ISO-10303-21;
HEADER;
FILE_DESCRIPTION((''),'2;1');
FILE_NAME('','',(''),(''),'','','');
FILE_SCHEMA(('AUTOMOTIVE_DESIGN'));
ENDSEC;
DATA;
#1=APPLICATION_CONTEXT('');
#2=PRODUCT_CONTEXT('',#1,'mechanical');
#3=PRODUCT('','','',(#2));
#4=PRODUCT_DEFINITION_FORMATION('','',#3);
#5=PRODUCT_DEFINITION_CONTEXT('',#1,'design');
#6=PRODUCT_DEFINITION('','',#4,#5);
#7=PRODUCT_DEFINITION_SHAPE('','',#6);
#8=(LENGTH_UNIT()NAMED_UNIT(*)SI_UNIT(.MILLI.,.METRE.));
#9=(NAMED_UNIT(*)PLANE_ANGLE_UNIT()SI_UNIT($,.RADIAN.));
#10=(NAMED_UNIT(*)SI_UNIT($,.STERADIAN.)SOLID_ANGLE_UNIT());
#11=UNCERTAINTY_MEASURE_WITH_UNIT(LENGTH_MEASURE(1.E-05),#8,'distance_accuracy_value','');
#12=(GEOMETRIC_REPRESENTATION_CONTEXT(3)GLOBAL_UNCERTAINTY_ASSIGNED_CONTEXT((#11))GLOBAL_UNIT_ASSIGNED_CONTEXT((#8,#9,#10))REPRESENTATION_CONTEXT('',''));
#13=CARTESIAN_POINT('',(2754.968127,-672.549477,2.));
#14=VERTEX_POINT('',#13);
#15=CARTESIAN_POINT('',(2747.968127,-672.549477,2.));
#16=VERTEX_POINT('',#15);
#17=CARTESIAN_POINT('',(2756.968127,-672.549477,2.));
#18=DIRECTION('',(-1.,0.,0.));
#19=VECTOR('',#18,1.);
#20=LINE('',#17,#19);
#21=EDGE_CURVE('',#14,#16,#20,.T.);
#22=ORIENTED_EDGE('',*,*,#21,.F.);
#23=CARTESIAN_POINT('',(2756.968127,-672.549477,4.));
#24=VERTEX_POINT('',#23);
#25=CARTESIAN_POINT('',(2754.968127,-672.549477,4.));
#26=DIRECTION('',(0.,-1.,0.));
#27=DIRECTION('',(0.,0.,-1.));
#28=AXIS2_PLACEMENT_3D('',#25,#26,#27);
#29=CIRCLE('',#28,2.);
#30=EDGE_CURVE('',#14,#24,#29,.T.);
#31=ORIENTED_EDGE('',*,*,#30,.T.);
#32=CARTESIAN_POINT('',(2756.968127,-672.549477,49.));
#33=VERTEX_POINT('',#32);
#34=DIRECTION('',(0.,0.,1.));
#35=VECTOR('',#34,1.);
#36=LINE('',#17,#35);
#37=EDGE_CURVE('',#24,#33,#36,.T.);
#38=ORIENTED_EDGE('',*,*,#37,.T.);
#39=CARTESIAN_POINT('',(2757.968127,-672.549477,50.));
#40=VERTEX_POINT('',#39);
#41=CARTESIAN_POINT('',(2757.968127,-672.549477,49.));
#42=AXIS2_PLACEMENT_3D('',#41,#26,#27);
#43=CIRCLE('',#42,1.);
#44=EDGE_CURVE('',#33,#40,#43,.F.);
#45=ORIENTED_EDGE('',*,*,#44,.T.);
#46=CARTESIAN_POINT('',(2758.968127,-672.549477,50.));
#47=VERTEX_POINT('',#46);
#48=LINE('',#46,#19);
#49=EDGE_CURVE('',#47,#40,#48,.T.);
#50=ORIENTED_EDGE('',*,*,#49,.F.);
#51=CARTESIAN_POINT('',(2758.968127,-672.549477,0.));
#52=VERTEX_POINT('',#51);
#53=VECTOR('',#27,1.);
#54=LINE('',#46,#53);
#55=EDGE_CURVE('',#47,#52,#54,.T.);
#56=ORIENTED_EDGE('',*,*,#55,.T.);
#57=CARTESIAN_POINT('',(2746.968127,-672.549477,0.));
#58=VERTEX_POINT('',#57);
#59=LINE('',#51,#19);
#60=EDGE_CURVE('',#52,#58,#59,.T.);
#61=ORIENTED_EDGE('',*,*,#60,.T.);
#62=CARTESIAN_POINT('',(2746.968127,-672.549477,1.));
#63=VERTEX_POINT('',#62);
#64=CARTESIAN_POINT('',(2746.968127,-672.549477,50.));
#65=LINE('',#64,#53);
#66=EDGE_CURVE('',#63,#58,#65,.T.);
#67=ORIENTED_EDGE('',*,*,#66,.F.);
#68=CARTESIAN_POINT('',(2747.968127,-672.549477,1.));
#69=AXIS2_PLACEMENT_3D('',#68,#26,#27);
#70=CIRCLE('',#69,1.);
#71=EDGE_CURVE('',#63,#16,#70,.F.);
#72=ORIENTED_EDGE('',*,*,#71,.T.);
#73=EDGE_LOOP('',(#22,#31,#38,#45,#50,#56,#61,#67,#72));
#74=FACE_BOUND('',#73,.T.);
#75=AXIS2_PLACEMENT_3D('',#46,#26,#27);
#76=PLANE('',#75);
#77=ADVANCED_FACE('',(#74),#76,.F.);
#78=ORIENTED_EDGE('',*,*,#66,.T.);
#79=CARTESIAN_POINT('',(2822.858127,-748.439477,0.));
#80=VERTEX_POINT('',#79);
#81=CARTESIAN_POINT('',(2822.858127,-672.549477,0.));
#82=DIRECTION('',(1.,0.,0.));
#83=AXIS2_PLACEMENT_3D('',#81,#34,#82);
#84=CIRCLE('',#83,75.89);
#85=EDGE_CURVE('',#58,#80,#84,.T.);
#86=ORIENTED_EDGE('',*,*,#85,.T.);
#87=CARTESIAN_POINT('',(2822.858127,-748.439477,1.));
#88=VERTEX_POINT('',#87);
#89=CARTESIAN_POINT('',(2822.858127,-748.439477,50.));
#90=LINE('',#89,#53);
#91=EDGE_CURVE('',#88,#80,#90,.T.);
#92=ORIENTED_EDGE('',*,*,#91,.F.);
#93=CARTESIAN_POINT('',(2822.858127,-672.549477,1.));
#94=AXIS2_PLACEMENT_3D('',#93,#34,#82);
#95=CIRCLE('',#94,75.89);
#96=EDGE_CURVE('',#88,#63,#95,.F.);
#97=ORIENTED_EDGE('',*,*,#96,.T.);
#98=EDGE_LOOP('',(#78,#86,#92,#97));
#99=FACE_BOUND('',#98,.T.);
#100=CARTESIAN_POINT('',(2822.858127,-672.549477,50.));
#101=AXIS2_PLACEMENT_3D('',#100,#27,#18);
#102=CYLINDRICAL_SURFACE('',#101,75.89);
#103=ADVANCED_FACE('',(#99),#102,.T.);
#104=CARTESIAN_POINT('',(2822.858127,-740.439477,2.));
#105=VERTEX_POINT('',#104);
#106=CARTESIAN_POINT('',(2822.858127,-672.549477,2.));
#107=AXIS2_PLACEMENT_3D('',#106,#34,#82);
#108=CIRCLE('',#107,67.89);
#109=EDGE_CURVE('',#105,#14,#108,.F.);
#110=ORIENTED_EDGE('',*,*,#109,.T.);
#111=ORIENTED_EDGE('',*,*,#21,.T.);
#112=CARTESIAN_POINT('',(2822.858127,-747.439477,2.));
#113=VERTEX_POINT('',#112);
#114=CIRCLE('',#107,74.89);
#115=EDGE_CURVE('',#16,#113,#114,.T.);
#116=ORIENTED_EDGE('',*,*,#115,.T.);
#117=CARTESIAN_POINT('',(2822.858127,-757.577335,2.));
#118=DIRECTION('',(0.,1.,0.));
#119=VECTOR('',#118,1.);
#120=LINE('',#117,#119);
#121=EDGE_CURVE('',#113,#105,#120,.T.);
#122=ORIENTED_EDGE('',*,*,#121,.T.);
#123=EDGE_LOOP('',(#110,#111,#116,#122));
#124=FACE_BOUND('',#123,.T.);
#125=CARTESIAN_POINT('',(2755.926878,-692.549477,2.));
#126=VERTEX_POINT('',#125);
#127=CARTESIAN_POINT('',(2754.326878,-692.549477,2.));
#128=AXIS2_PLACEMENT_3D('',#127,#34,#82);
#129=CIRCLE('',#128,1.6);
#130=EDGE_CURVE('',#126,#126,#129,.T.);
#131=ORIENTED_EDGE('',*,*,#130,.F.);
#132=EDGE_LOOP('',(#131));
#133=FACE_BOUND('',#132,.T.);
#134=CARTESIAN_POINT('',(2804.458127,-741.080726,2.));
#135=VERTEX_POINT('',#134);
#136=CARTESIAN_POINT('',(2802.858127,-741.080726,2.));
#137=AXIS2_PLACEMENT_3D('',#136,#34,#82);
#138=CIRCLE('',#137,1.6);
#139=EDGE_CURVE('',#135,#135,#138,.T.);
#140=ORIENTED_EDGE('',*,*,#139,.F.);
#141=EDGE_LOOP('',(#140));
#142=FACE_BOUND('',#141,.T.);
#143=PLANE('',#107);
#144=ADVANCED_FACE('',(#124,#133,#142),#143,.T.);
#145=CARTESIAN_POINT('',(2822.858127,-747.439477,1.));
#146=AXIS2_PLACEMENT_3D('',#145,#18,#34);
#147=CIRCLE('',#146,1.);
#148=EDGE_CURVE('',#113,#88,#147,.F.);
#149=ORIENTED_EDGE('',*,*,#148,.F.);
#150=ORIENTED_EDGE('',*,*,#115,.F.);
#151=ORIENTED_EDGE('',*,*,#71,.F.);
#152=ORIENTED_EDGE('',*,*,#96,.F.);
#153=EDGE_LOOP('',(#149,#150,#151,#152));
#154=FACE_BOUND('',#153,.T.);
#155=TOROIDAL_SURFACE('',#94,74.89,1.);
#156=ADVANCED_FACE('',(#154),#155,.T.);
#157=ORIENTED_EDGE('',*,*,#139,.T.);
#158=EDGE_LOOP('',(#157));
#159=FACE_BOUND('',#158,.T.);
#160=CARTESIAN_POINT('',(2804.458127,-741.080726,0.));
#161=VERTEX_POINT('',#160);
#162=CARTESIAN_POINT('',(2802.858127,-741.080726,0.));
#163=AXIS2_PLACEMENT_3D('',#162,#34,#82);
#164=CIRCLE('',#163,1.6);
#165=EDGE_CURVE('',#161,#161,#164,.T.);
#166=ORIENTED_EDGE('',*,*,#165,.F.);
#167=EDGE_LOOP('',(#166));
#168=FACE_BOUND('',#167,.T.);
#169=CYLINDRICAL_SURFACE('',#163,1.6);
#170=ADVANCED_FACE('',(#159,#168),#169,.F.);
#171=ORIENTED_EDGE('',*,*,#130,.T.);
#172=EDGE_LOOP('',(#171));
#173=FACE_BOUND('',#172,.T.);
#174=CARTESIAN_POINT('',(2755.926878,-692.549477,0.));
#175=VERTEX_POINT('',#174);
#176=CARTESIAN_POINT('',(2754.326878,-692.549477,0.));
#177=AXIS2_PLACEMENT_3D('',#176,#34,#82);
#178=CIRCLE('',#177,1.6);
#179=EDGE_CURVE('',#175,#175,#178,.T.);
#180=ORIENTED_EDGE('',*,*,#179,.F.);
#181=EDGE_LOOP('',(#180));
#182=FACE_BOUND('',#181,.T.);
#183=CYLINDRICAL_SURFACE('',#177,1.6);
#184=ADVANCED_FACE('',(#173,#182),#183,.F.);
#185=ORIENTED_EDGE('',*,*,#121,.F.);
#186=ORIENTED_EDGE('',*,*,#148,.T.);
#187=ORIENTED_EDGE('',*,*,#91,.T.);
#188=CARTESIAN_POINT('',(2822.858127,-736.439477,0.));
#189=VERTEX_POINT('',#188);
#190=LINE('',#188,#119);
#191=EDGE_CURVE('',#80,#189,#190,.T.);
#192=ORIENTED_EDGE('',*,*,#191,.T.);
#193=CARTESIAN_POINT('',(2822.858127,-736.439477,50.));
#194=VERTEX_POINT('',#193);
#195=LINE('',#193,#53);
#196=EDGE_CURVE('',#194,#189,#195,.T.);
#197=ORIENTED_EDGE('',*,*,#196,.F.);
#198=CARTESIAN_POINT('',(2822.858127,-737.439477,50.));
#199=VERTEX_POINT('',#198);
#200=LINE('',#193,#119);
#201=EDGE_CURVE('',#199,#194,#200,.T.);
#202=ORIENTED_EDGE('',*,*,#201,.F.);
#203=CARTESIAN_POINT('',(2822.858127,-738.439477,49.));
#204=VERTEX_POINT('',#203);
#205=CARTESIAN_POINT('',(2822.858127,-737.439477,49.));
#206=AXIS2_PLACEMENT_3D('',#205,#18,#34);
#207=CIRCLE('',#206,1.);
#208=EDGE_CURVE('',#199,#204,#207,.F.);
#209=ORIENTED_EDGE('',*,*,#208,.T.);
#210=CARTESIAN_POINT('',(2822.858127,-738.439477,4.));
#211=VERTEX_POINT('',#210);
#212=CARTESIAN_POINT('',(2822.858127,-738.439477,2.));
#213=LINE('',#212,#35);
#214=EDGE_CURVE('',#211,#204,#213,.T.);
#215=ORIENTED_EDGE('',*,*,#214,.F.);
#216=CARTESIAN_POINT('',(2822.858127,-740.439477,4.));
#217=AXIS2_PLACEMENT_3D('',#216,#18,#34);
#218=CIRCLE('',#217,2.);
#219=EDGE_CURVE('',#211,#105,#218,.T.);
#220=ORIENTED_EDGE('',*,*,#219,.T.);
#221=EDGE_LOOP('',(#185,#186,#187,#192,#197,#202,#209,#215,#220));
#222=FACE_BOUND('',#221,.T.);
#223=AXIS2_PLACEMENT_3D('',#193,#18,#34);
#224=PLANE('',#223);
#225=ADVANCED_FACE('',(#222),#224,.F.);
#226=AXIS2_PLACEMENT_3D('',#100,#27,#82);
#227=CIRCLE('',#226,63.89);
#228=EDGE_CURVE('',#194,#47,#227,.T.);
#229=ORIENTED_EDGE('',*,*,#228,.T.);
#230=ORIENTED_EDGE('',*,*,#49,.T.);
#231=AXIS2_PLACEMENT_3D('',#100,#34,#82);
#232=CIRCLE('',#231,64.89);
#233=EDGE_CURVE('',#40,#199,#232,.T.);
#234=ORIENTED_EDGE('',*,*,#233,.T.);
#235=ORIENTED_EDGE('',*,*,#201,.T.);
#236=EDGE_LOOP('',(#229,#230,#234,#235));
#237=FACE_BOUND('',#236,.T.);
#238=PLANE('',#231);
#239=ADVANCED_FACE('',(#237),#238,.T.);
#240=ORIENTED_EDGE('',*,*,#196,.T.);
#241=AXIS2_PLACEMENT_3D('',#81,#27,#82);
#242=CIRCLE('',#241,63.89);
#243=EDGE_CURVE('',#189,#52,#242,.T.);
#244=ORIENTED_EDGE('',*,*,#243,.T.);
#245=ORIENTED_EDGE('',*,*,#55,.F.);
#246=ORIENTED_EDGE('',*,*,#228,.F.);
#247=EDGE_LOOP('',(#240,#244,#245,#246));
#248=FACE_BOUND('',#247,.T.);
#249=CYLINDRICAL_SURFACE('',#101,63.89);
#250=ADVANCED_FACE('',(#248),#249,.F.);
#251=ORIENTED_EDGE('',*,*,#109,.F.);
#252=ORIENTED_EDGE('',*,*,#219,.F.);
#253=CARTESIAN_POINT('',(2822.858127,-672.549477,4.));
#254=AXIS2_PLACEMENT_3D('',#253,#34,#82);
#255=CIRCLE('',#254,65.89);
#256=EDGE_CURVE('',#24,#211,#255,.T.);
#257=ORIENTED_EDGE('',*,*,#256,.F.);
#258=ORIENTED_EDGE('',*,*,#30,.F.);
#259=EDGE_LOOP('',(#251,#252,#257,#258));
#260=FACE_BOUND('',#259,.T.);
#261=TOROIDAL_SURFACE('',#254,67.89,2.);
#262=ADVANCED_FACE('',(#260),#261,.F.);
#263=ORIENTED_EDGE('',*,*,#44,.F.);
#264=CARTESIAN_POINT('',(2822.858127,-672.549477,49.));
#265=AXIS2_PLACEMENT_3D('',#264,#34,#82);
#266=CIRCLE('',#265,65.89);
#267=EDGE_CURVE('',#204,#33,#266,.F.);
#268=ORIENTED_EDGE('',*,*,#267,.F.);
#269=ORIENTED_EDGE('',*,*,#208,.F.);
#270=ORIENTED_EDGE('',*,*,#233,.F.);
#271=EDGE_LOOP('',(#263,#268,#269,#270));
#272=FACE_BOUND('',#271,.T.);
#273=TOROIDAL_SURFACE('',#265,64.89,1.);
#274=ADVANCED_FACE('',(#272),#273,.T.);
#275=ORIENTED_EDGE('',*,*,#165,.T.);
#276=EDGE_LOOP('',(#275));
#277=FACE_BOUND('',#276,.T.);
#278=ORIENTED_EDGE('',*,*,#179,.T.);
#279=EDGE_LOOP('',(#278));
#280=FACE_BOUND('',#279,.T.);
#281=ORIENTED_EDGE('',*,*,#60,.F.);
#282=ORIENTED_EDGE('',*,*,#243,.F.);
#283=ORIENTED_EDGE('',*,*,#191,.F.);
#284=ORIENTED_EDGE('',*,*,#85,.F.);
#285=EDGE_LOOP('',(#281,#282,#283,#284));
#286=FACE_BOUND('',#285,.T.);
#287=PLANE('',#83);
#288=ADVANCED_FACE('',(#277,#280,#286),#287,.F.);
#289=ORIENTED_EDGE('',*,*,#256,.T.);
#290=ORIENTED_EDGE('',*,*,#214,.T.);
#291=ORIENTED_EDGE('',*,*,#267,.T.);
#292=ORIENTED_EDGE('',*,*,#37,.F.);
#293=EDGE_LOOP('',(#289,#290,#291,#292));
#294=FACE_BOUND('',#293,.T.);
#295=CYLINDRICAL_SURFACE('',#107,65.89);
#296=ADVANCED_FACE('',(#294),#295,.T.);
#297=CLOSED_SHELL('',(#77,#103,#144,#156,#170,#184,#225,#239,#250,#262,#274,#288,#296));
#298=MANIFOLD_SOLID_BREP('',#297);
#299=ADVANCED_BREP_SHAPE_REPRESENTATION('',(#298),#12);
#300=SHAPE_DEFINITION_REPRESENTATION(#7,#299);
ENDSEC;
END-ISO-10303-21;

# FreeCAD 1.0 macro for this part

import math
import FreeCAD as App
import Part
import Sketcher

V = App.Vector


def edges_at(feature, points):
    """Names of the edges that pass closest to the given points."""
    edges = feature.Shape.Edges
    near = lambda p: min(range(len(edges)), key=lambda i: edges[i].distToShape(Part.Vertex(*p))[0])
    return sorted({f"Edge{near(p) + 1}" for p in points})

doc = App.newDocument("Part")
params = doc.addObject("Spreadsheet::Sheet", "Params")
for row, (alias, value) in enumerate([
    ("sketch1_width", "12 mm"),
    ("sketch1_radius", "75.89 mm"),
    ("pad1_length", "50 mm"),
    ("sketch2_radius", "65.89 mm"),
    ("pocket1_length", "48 mm"),
    ("fillet_radius", "1 mm"),
    ("fillet2_radius", "2 mm"),
    ("sketch3_diameter", "3.2 mm"),
], start=1):
    params.set(f"A{row}", alias)
    params.set(f"B{row}", "=" + value)
    params.setAlias(f"B{row}", alias)

body = doc.addObject("PartDesign::Body", "Body")

sketch1 = doc.addObject("Sketcher::SketchObject", "Sketch")
body.addObject(sketch1)
sketch1.AttachmentSupport = (doc.XY_Plane, [""])
sketch1.MapMode = "FlatFace"
sketch1.addGeometry(Part.LineSegment(V(2758.968127, -672.549477, 0), V(2746.968127, -672.549477, 0)), False)
sketch1.addGeometry(Part.ArcOfCircle(Part.Circle(V(2822.858127, -672.549477, 0), V(0, 0, 1), 75.89), math.radians(180), math.radians(270)), False)
sketch1.addGeometry(Part.LineSegment(V(2822.858127, -748.439477, 0), V(2822.858127, -736.439477, 0)), False)
sketch1.addGeometry(Part.ArcOfCircle(Part.Circle(V(2822.858127, -672.549477, 0), V(0, 0, 1), 63.89), math.radians(180), math.radians(270)), False)
sketch1.addConstraint(Sketcher.Constraint("Coincident", 0, 2, 1, 1))
sketch1.addConstraint(Sketcher.Constraint("Coincident", 1, 2, 2, 1))
sketch1.addConstraint(Sketcher.Constraint("Coincident", 2, 2, 3, 2))
sketch1.addConstraint(Sketcher.Constraint("Coincident", 3, 1, 0, 1))
sketch1.addConstraint(Sketcher.Constraint("Horizontal", 0))
sketch1.addConstraint(Sketcher.Constraint("Vertical", 2))
sketch1.addConstraint(Sketcher.Constraint("Coincident", 3, 3, 1, 3))
sketch1.addConstraint(Sketcher.Constraint("Horizontal", 3, 3, 0, 2))
sketch1.addConstraint(Sketcher.Constraint("Vertical", 3, 3, 1, 2))
sketch1.addConstraint(Sketcher.Constraint("DistanceX", 0, 2, 0, 1, 12.0))
sketch1.addConstraint(Sketcher.Constraint("Radius", 1, 75.89))
sketch1.addConstraint(Sketcher.Constraint("DistanceX", -1, 1, 1, 3, 2822.858127))
sketch1.addConstraint(Sketcher.Constraint("DistanceY", 1, 3, -1, 1, 672.549477))
sketch1.setExpression("Constraints[9]", "Params.sketch1_width")
sketch1.setExpression("Constraints[10]", "Params.sketch1_radius")
pad1 = doc.addObject("PartDesign::Pad", "Pad")
body.addObject(pad1)
pad1.Profile = sketch1
pad1.setExpression("Length", "Params.pad1_length")

sketch2 = doc.addObject("Sketcher::SketchObject", "Sketch001")
body.addObject(sketch2)
sketch2.AttachmentSupport = (doc.XY_Plane, [""])
sketch2.MapMode = "FlatFace"
sketch2.AttachmentOffset = App.Placement(V(0, 0, 50), App.Rotation())
sketch2.addGeometry(Part.LineSegment(V(2756.968127, -672.549477, 0), V(2737.478839, -672.549477, 0)), False)
sketch2.addGeometry(Part.LineSegment(V(2737.478839, -672.549477, 0), V(2737.478839, -757.577335, 0)), False)
sketch2.addGeometry(Part.LineSegment(V(2737.478839, -757.577335, 0), V(2822.858127, -757.577335, 0)), False)
sketch2.addGeometry(Part.LineSegment(V(2822.858127, -757.577335, 0), V(2822.858127, -738.439477, 0)), False)
sketch2.addGeometry(Part.ArcOfCircle(Part.Circle(V(2822.858127, -672.549477, 0), V(0, 0, 1), 65.89), math.radians(180), math.radians(270)), False)
sketch2.addConstraint(Sketcher.Constraint("Coincident", 0, 2, 1, 1))
sketch2.addConstraint(Sketcher.Constraint("Coincident", 1, 2, 2, 1))
sketch2.addConstraint(Sketcher.Constraint("Coincident", 2, 2, 3, 1))
sketch2.addConstraint(Sketcher.Constraint("Coincident", 3, 2, 4, 2))
sketch2.addConstraint(Sketcher.Constraint("Coincident", 4, 1, 0, 1))
sketch2.addConstraint(Sketcher.Constraint("Horizontal", 0))
sketch2.addConstraint(Sketcher.Constraint("Vertical", 1))
sketch2.addConstraint(Sketcher.Constraint("Horizontal", 2))
sketch2.addConstraint(Sketcher.Constraint("Vertical", 3))
sketch2.addConstraint(Sketcher.Constraint("Horizontal", 4, 3, 0, 2))
sketch2.addConstraint(Sketcher.Constraint("Vertical", 4, 3, 2, 2))
sketch2.addConstraint(Sketcher.Constraint("Radius", 4, 65.89))
sketch2.addConstraint(Sketcher.Constraint("DistanceX", 0, 2, 0, 1, 19.489288))
sketch2.addConstraint(Sketcher.Constraint("DistanceY", 1, 2, 1, 1, 85.027858))
sketch2.addConstraint(Sketcher.Constraint("DistanceX", -1, 1, 0, 2, 2737.478839))
sketch2.addConstraint(Sketcher.Constraint("DistanceY", 4, 3, -1, 1, 672.549477))
sketch2.setExpression("Constraints[11]", "Params.sketch2_radius")
pocket1 = doc.addObject("PartDesign::Pocket", "Pocket")
body.addObject(pocket1)
pocket1.Profile = sketch2
pocket1.setExpression("Length", "Params.pocket1_length")
doc.recompute()

fillet = doc.addObject("PartDesign::Fillet", "Fillet")
body.addObject(fillet)
fillet.Base = (pocket1, edges_at(pocket1, [(2776.267, -719.141, 50), (2769.196, -726.212, 2)]))
fillet.setExpression("Radius", "Params.fillet_radius")
doc.recompute()

fillet2 = doc.addObject("PartDesign::Fillet", "Fillet001")
body.addObject(fillet2)
fillet2.Base = (fillet, edges_at(fillet, [(2776.267, -719.141, 2)]))
fillet2.setExpression("Radius", "Params.fillet2_radius")

sketch3 = doc.addObject("Sketcher::SketchObject", "Sketch002")
body.addObject(sketch3)
sketch3.AttachmentSupport = (doc.XY_Plane, [""])
sketch3.MapMode = "FlatFace"
sketch3.AttachmentOffset = App.Placement(V(0, 0, 2), App.Rotation())
sketch3.addGeometry(Part.Circle(V(2802.858127, -741.080726, 0), V(0, 0, 1), 1.6), False)
sketch3.addGeometry(Part.Circle(V(2754.326878, -692.549477, 0), V(0, 0, 1), 1.6), False)
sketch3.addConstraint(Sketcher.Constraint("Equal", 0, 1))
sketch3.addConstraint(Sketcher.Constraint("Diameter", 0, 3.2))
sketch3.addConstraint(Sketcher.Constraint("DistanceX", 1, 3, 0, 3, 48.531249))
sketch3.addConstraint(Sketcher.Constraint("DistanceY", 0, 3, 1, 3, 48.531249))
sketch3.addConstraint(Sketcher.Constraint("DistanceX", -1, 1, 0, 3, 2802.858127))
sketch3.addConstraint(Sketcher.Constraint("DistanceY", 0, 3, -1, 1, 741.080726))
sketch3.setExpression("Constraints[1]", "Params.sketch3_diameter")
pocket2 = doc.addObject("PartDesign::Pocket", "Pocket001")
body.addObject(pocket2)
pocket2.Profile = sketch3
pocket2.Type = "ThroughAll"

doc.recompute()
